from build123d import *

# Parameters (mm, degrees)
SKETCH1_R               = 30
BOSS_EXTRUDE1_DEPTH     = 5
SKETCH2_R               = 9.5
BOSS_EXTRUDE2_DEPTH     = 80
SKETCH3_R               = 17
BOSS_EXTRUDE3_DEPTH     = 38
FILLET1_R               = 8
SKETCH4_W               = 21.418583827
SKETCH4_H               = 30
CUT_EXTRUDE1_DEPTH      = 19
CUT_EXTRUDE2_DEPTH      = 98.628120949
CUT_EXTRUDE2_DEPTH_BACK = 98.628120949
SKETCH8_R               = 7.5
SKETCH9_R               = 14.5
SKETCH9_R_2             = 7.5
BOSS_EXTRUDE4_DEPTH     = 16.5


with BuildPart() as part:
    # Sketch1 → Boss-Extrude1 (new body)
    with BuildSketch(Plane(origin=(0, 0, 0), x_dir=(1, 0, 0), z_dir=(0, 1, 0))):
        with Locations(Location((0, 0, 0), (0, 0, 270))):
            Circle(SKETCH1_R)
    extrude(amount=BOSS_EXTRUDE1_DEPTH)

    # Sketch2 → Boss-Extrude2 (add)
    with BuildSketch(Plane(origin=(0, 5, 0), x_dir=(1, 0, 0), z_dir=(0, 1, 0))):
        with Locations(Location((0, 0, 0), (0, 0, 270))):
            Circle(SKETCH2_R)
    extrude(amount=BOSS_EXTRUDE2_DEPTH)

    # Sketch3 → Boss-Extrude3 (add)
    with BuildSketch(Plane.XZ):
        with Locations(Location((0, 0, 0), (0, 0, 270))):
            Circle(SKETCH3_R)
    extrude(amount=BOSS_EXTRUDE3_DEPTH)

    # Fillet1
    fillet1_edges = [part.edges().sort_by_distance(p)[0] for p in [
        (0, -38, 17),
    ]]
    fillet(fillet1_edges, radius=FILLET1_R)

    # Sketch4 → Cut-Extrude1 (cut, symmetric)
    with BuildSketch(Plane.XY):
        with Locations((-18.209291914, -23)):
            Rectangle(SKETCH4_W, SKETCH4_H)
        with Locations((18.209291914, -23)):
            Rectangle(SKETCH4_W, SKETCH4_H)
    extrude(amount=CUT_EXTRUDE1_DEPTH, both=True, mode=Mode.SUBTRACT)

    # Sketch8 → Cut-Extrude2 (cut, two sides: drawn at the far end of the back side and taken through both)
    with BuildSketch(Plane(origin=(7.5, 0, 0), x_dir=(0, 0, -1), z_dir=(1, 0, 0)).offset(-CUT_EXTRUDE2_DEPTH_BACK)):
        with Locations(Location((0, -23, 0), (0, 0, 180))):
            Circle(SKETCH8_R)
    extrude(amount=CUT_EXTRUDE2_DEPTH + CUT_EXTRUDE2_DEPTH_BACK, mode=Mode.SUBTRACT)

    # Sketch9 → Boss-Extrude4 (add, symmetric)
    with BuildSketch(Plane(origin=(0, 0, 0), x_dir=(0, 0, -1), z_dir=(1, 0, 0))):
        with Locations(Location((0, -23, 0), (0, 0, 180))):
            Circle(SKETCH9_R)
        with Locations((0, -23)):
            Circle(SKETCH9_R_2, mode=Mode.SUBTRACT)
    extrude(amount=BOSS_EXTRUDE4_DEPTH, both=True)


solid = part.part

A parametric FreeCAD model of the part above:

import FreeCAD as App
import Part
import Sketcher
from FreeCAD import Vector


def edges_at(feature, points):
    """Names of the edges that pass closest to the given points."""
    edges = feature.Shape.Edges
    near = lambda p: min(range(len(edges)), key=lambda i: edges[i].distToShape(Part.Vertex(*p))[0])
    return sorted({f"Edge{near(p) + 1}" for p in points})


def add_polygon(sketch, points):
    """Adds a closed chain of lines whose ends are joined by coincident constraints."""
    first, n = sketch.GeometryCount, len(points)
    for a, b in zip(points, points[1:] + points[:1]):
        sketch.addGeometry(Part.LineSegment(App.Vector(*a, 0), App.Vector(*b, 0)), False)
    for i in range(n):
        sketch.addConstraint(Sketcher.Constraint("Coincident", first + i, 2, first + (i + 1) % n, 1))

doc = App.newDocument("Part")
params = doc.addObject("Spreadsheet::Sheet", "Params")
for row, (alias, value) in enumerate([
    ("sketch1_diameter", "60 mm"),
    ("pad1_length", "5 mm"),
    ("sketch2_diameter", "19 mm"),
    ("pad2_length", "80 mm"),
    ("sketch3_diameter", "34 mm"),
    ("pad3_length", "38 mm"),
    ("fillet_radius", "8 mm"),
    ("sketch4_height", "30 mm"),
    ("pocket1_length", "38 mm"),
    ("sketch5_diameter", "15 mm"),
    ("sketch6_diameter", "29 mm"),
    ("sketch6_diameter2", "15 mm"),
    ("pad4_length", "33 mm"),
], start=1):
    params.set(f"A{row}", alias)
    params.set(f"B{row}", "=" + value)
    params.setAlias(f"B{row}", alias)

body = doc.addObject("PartDesign::Body", "Body")

# Sketch on XZ plane
sketch1 = body.newObject("Sketcher::SketchObject", "Sketch")
sketch1.AttachmentSupport = (doc.getObject("XZ_Plane"), [""])
sketch1.MapMode = "FlatFace"
sketch1.addGeometry(Part.Circle(Vector(0, 0, 0), Vector(0, 0, 1), 30), False)
sketch1.addConstraint(Sketcher.Constraint("Coincident", 0, 3, -1, 1))
sketch1.addConstraint(Sketcher.Constraint("Diameter", 0, 60.0))
sketch1.setExpression("Constraints[1]", "Params.sketch1_diameter")
pad1 = body.newObject("PartDesign::Pad", "Pad")
pad1.Profile = sketch1
pad1.setExpression("Length", "Params.pad1_length")
pad1.Reversed = True

# Sketch on XZ plane
sketch2 = body.newObject("Sketcher::SketchObject", "Sketch001")
sketch2.AttachmentSupport = (doc.getObject("XZ_Plane"), [""])
sketch2.MapMode = "FlatFace"
sketch2.AttachmentOffset = App.Placement(Vector(0, 0, -5), App.Rotation())
sketch2.addGeometry(Part.Circle(Vector(0, 0, 0), Vector(0, 0, 1), 9.5), False)
sketch2.addConstraint(Sketcher.Constraint("Coincident", 0, 3, -1, 1))
sketch2.addConstraint(Sketcher.Constraint("Diameter", 0, 19.0))
sketch2.setExpression("Constraints[1]", "Params.sketch2_diameter")
pad2 = body.newObject("PartDesign::Pad", "Pad001")
pad2.Profile = sketch2
pad2.setExpression("Length", "Params.pad2_length")
pad2.Reversed = True

# Sketch on XZ plane
sketch3 = body.newObject("Sketcher::SketchObject", "Sketch002")
sketch3.AttachmentSupport = (doc.getObject("XZ_Plane"), [""])
sketch3.MapMode = "FlatFace"
sketch3.addGeometry(Part.Circle(Vector(0, 0, 0), Vector(0, 0, 1), 17), False)
sketch3.addConstraint(Sketcher.Constraint("Coincident", 0, 3, -1, 1))
sketch3.addConstraint(Sketcher.Constraint("Diameter", 0, 34.0))
sketch3.setExpression("Constraints[1]", "Params.sketch3_diameter")
pad3 = body.newObject("PartDesign::Pad", "Pad002")
pad3.Profile = sketch3
pad3.setExpression("Length", "Params.pad3_length")
doc.recompute()

fillet = body.newObject("PartDesign::Fillet", "Fillet")
fillet.Base = (pad3, edges_at(pad3, [(0, -38, 17)]))
fillet.setExpression("Radius", "Params.fillet_radius")

# Sketch on XY plane
sketch4 = body.newObject("Sketcher::SketchObject", "Sketch003")
sketch4.AttachmentSupport = (doc.getObject("XY_Plane"), [""])
sketch4.MapMode = "FlatFace"
add_polygon(sketch4, [(-28.918584, -8), (-28.918584, -38), (-7.5, -38), (-7.5, -8)])  # lines 0-3
add_polygon(sketch4, [(7.5, -8), (7.5, -38), (28.918584, -38), (28.918584, -8)])  # lines 4-7
sketch4.addConstraint(Sketcher.Constraint("Vertical", 0))
sketch4.addConstraint(Sketcher.Constraint("Horizontal", 1))
sketch4.addConstraint(Sketcher.Constraint("Vertical", 2))
sketch4.addConstraint(Sketcher.Constraint("Horizontal", 3))
sketch4.addConstraint(Sketcher.Constraint("Vertical", 4))
sketch4.addConstraint(Sketcher.Constraint("Horizontal", 5))
sketch4.addConstraint(Sketcher.Constraint("Vertical", 6))
sketch4.addConstraint(Sketcher.Constraint("Horizontal", 7))
sketch4.addConstraint(Sketcher.Constraint("Symmetric", 1, 2, 4, 2, -2))
sketch4.addConstraint(Sketcher.Constraint("Symmetric", 3, 2, 6, 2, -2))
sketch4.addConstraint(Sketcher.Constraint("DistanceY", 0, 2, 0, 1, 30.0))
sketch4.addConstraint(Sketcher.Constraint("DistanceY", 0, 2, -1, 1, 38.0))
sketch4.addConstraint(Sketcher.Constraint("DistanceX", 1, 2, 4, 2, 15.0))
sketch4.addConstraint(Sketcher.Constraint("DistanceX", 1, 1, 1, 2, 21.418584))
sketch4.setExpression("Constraints[18]", "Params.sketch4_height")
pocket1 = body.newObject("PartDesign::Pocket", "Pocket")
pocket1.Profile = sketch4
pocket1.setExpression("Length", "Params.pocket1_length")
pocket1.Midplane = True

# Sketch on YZ plane
sketch5 = body.newObject("Sketcher::SketchObject", "Sketch004")
sketch5.AttachmentSupport = (doc.getObject("YZ_Plane"), [""])
sketch5.MapMode = "FlatFace"
sketch5.AttachmentOffset = App.Placement(Vector(0, 0, 7.5), App.Rotation())
sketch5.addGeometry(Part.Circle(Vector(-23, 0, 0), Vector(0, 0, 1), 7.5), False)
sketch5.addConstraint(Sketcher.Constraint("PointOnObject", 0, 3, -1))
sketch5.addConstraint(Sketcher.Constraint("Diameter", 0, 15.0))
sketch5.addConstraint(Sketcher.Constraint("DistanceX", 0, 3, -1, 1, 23.0))
sketch5.setExpression("Constraints[1]", "Params.sketch5_diameter")
pocket2 = body.newObject("PartDesign::Pocket", "Pocket001")
pocket2.Profile = sketch5
pocket2.Type = "ThroughAll"
pocket2.Midplane = True

# Sketch on YZ plane
sketch6 = body.newObject("Sketcher::SketchObject", "Sketch005")
sketch6.AttachmentSupport = (doc.getObject("YZ_Plane"), [""])
sketch6.MapMode = "FlatFace"
sketch6.addGeometry(Part.Circle(Vector(-23, 0, 0), Vector(0, 0, 1), 14.5), False)
sketch6.addGeometry(Part.Circle(Vector(-23, 0, 0), Vector(0, 0, 1), 7.5), False)
sketch6.addConstraint(Sketcher.Constraint("Coincident", 1, 3, 0, 3))
sketch6.addConstraint(Sketcher.Constraint("PointOnObject", 0, 3, -1))
sketch6.addConstraint(Sketcher.Constraint("Diameter", 0, 29.0))
sketch6.addConstraint(Sketcher.Constraint("Diameter", 1, 15.0))
sketch6.addConstraint(Sketcher.Constraint("DistanceX", 0, 3, -1, 1, 23.0))
sketch6.setExpression("Constraints[2]", "Params.sketch6_diameter")
sketch6.setExpression("Constraints[3]", "Params.sketch6_diameter2")
pad4 = body.newObject("PartDesign::Pad", "Pad003")
pad4.Profile = sketch6
pad4.setExpression("Length", "Params.pad4_length")
pad4.Midplane = True

doc.recompute()
